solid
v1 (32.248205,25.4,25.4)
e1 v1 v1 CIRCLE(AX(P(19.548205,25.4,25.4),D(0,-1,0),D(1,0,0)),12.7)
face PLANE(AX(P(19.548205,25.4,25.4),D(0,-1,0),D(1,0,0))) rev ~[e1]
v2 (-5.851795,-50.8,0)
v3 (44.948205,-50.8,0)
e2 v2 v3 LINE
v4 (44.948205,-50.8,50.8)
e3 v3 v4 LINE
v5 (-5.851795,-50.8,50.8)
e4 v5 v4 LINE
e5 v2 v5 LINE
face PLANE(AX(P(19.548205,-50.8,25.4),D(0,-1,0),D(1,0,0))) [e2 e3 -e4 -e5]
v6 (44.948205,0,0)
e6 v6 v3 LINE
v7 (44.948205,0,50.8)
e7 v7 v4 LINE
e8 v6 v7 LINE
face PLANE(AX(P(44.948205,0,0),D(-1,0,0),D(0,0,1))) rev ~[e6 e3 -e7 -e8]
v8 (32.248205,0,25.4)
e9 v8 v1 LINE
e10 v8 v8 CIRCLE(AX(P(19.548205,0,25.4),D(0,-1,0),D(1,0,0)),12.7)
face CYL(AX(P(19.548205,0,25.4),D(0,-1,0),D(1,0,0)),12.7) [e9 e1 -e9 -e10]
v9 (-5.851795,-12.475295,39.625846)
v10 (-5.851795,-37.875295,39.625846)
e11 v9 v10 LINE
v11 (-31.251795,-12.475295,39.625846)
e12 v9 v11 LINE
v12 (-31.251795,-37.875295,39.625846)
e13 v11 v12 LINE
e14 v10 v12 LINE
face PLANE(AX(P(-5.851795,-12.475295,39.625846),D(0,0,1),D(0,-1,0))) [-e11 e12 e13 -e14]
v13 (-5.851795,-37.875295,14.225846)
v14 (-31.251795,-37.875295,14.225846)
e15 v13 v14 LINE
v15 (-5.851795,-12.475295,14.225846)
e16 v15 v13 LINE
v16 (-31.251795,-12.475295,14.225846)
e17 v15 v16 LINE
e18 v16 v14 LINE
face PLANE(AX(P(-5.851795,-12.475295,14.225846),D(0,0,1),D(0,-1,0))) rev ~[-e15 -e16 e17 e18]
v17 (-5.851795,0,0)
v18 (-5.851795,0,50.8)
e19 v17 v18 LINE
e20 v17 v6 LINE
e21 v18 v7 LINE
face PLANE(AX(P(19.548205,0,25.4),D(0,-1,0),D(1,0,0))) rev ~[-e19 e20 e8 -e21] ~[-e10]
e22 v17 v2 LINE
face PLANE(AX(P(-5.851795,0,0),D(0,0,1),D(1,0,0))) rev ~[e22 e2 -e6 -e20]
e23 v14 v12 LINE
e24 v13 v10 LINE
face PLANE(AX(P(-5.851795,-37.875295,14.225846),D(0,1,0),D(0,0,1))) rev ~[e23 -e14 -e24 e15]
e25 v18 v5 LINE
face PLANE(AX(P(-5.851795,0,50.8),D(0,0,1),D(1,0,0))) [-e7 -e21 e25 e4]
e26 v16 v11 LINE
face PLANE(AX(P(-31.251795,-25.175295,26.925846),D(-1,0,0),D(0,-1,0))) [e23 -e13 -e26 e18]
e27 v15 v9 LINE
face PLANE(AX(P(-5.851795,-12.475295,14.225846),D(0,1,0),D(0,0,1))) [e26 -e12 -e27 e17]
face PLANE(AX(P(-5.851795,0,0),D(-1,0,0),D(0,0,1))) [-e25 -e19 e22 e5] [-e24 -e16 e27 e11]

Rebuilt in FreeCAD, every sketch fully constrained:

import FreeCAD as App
import Part
import Sketcher
from FreeCAD import Vector
Q = App.Units.Quantity


def add_polygon(sketch, points):
    """Adds a closed chain of lines whose ends are joined by coincident constraints."""
    first, n = sketch.GeometryCount, len(points)
    for a, b in zip(points, points[1:] + points[:1]):
        sketch.addGeometry(Part.LineSegment(App.Vector(*a, 0), App.Vector(*b, 0)), False)
    for i in range(n):
        sketch.addConstraint(Sketcher.Constraint("Coincident", first + i, 2, first + (i + 1) % n, 1))

doc = App.newDocument("Part")
params = doc.addObject("Spreadsheet::Sheet", "Params")
for row, (alias, value) in enumerate([
    ("sketch1_width", "2 in"),
    ("pad1_length", "2 in"),
    ("sketch2_diameter", "1 in"),
    ("pad2_length", "1 in"),
    ("sketch3_width", "1 in"),
    ("pad3_length", "1 in"),
], start=1):
    params.set(f"A{row}", alias)
    params.set(f"B{row}", "=" + value)
    params.setAlias(f"B{row}", alias)

body = doc.addObject("PartDesign::Body", "Body")

sketch1 = body.newObject("Sketcher::SketchObject", "Sketch")
sketch1.AttachmentSupport = (doc.getObject("XZ_Plane"), [""])
sketch1.MapMode = "FlatFace"
add_polygon(sketch1, [(-5.851795, 50.8), (-5.851795, 0), (44.948205, 0), (44.948205, 50.8)])
sketch1.addConstraint([
    Sketcher.Constraint("Vertical", 0),
    Sketcher.Constraint("Horizontal", 1),
    Sketcher.Constraint("Vertical", 2),
    Sketcher.Constraint("Horizontal", 3),
    Sketcher.Constraint("PointOnObject", 0, 2, -1),
    Sketcher.Constraint("Equal", 3, 0),
    Sketcher.Constraint("DistanceX", 1, 1, 1, 2, Q("2 in")),
    Sketcher.Constraint("DistanceX", 0, 2, -1, 1, 5.851795),
])
sketch1.setExpression("Constraints[10]", "Params.sketch1_width")
pad1 = body.newObject("PartDesign::Pad", "Pad")
pad1.Profile = sketch1
pad1.setExpression("Length", "Params.pad1_length")

sketch2 = body.newObject("Sketcher::SketchObject", "Sketch001")
sketch2.AttachmentSupport = (doc.getObject("XZ_Plane"), [""])
sketch2.MapMode = "FlatFace"
sketch2.addGeometry(Part.Circle(Vector(19.548205, 25.4, 0), Vector(0, 0, 1), 12.7), False)
sketch2.addConstraint([
    Sketcher.Constraint("Diameter", 0, Q("1 in")),
    Sketcher.Constraint("DistanceY", -1, 1, 0, 3, Q("1 in")),
    Sketcher.Constraint("DistanceX", -1, 1, 0, 3, 19.548205),
])
sketch2.setExpression("Constraints[0]", "Params.sketch2_diameter")
pad2 = body.newObject("PartDesign::Pad", "Pad001")
pad2.Profile = sketch2
pad2.setExpression("Length", "Params.pad2_length")
pad2.Reversed = True

sketch3 = body.newObject("Sketcher::SketchObject", "Sketch002")
sketch3.AttachmentSupport = (doc.getObject("YZ_Plane"), [""])
sketch3.MapMode = "FlatFace"
sketch3.AttachmentOffset = App.Placement(Vector(0, 0, -5.851795), App.Rotation())
add_polygon(sketch3, [(-12.475295, 39.625846), (-12.475295, 14.225846), (-37.875295, 14.225846), (-37.875295, 39.625846)])
sketch3.addConstraint([
    Sketcher.Constraint("Vertical", 0),
    Sketcher.Constraint("Horizontal", 1),
    Sketcher.Constraint("Vertical", 2),
    Sketcher.Constraint("Horizontal", 3),
    Sketcher.Constraint("Equal", 3, 0),
    Sketcher.Constraint("DistanceX", 1, 2, 1, 1, Q("1 in")),
    Sketcher.Constraint("DistanceX", 0, 2, -1, 1, 12.475295),
    Sketcher.Constraint("DistanceY", -1, 1, 0, 2, 14.225846),
])
sketch3.setExpression("Constraints[9]", "Params.sketch3_width")
pad3 = body.newObject("PartDesign::Pad", "Pad002")
pad3.Profile = sketch3
pad3.setExpression("Length", "Params.pad3_length")
pad3.Reversed = True

doc.recompute()
